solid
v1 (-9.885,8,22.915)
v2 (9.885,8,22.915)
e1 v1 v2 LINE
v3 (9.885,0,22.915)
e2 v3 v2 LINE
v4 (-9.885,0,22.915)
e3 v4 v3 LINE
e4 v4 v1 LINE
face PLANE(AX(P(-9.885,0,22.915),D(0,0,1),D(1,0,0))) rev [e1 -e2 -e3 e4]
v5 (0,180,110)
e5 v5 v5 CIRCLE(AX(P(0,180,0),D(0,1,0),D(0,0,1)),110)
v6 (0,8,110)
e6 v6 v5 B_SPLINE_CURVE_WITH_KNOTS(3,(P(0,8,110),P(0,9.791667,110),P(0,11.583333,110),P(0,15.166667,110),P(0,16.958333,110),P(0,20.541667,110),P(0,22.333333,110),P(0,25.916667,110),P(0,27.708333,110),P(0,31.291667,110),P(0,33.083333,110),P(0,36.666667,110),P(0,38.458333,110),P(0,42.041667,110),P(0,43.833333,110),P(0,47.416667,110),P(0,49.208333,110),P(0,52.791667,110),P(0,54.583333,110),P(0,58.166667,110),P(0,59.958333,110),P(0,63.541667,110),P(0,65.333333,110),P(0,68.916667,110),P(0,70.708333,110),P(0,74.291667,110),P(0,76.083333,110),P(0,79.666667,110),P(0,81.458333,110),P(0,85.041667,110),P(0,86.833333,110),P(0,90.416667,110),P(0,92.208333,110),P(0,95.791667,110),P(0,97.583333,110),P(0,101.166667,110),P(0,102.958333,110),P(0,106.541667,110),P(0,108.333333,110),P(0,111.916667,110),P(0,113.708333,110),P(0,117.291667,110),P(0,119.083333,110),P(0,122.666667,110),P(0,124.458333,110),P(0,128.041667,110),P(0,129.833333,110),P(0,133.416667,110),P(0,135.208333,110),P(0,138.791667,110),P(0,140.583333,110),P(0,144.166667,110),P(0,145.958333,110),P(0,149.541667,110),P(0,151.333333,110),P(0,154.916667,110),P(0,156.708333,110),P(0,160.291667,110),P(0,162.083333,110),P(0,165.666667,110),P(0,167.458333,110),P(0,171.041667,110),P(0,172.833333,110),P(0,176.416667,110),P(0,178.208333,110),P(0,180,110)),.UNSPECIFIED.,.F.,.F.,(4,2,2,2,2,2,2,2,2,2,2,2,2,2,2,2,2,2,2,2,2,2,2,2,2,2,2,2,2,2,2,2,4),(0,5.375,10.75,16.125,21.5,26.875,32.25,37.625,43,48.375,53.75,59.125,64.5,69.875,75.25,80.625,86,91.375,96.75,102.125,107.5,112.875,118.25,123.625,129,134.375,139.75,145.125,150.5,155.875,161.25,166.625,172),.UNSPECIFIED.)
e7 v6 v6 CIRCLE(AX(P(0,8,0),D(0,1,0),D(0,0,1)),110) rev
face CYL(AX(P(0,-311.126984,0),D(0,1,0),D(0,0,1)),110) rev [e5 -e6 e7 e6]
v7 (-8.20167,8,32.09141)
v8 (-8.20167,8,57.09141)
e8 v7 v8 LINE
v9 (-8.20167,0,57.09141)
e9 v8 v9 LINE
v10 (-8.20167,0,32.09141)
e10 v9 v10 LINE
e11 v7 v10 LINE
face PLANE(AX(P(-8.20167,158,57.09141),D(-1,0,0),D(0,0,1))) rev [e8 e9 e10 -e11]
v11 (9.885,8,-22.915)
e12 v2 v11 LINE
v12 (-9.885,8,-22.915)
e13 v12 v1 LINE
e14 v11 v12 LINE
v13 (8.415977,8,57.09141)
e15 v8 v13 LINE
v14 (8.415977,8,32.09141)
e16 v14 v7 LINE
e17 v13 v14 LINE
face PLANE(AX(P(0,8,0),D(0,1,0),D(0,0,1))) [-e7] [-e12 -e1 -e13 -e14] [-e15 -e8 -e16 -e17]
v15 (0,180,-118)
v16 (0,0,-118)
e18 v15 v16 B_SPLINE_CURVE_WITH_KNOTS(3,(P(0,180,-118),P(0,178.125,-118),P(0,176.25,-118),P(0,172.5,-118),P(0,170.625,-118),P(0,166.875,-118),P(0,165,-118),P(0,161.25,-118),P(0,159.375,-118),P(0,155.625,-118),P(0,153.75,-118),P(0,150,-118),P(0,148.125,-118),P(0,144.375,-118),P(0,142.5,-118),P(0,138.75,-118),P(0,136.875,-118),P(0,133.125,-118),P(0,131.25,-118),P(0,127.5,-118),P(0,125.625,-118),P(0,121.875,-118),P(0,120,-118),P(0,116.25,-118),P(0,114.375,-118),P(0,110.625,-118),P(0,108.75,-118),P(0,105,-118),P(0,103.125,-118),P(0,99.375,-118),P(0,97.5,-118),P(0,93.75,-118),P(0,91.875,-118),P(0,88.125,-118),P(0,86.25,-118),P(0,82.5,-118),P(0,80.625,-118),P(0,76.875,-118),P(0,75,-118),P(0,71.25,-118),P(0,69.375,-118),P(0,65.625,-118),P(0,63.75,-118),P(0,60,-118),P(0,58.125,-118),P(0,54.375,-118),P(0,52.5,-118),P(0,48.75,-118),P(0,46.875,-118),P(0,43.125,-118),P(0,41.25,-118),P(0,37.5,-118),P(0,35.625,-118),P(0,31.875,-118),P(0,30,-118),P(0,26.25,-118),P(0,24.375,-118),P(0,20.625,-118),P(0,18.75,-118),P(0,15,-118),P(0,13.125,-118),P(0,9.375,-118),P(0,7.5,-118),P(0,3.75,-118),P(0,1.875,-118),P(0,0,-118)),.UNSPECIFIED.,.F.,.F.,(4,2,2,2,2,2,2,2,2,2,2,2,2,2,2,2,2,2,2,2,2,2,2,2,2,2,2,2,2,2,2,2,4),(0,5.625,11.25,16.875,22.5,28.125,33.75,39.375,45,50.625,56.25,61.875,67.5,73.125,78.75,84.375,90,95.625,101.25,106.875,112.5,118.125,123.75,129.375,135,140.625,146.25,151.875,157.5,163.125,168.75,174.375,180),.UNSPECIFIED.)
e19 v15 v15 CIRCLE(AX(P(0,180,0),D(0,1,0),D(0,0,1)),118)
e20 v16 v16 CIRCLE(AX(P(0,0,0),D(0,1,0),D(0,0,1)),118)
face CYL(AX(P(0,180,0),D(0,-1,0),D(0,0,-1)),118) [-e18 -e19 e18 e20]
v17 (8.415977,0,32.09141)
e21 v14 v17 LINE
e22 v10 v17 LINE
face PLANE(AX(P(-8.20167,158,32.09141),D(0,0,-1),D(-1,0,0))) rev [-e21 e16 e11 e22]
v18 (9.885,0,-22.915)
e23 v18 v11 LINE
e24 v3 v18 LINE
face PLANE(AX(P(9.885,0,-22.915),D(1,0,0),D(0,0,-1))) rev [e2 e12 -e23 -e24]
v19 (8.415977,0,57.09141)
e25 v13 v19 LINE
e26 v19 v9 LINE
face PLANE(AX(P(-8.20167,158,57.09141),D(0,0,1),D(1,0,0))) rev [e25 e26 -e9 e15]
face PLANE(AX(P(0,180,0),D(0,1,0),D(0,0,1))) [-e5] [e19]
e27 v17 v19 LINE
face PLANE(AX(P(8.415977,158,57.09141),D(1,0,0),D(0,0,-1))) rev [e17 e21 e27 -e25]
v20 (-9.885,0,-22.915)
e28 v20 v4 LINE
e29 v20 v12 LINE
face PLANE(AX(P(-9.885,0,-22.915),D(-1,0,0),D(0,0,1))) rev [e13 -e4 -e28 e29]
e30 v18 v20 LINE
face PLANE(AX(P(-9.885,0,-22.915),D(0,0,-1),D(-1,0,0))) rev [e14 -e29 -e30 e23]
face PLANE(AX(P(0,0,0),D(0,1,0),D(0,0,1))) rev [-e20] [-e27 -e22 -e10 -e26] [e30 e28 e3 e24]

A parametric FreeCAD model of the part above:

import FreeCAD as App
import Part
import Sketcher
Q = App.Units.Quantity

doc = App.newDocument("Part")
body = doc.addObject("PartDesign::Body", "Body")

sketch1 = body.newObject("Sketcher::SketchObject", "Sketch")
sketch1.AttachmentSupport = (doc.getObject("XZ_Plane"), [""])
sketch1.MapMode = "FlatFace"
sketch1.addGeometry(Part.Circle(App.Vector(0, 0, 0), App.Vector(0, 0, 1), 118), False)
sketch1.addConstraint([
    Sketcher.Constraint("Coincident", 0, 3, -1, 1),
    Sketcher.Constraint("Diameter", 0, Q("236 mm")),
])
pad1 = body.newObject("PartDesign::Pad", "Pad")
pad1.Profile = sketch1
pad1.Length = 180
pad1.Reversed = True

sketch2 = body.newObject("Sketcher::SketchObject", "Sketch001")
sketch2.AttachmentSupport = (doc.getObject("XZ_Plane"), [""])
sketch2.MapMode = "FlatFace"
sketch2.AttachmentOffset = App.Placement(App.Vector(0, 0, -180), App.Rotation())
sketch2.addGeometry(Part.Circle(App.Vector(0, 0, 0), App.Vector(0, 0, 1), 110), False)
sketch2.addConstraint([
    Sketcher.Constraint("Coincident", 0, 3, -1, 1),
    Sketcher.Constraint("Diameter", 0, Q("220 mm")),
])
pocket1 = body.newObject("PartDesign::Pocket", "Pocket")
pocket1.Profile = sketch2
pocket1.Length = 172
pocket1.Reversed = True

sketch3 = body.newObject("Sketcher::SketchObject", "Sketch002")
sketch3.AttachmentSupport = (doc.getObject("XZ_Plane"), [""])
sketch3.MapMode = "FlatFace"
sketch3.AttachmentOffset = App.Placement(App.Vector(0, 0, -8), App.Rotation())
sketch3.addGeometry([
    Part.LineSegment(App.Vector(-10, -23, 0), App.Vector(-10, 23, 0)),
    Part.LineSegment(App.Vector(-10, 23, 0), App.Vector(10, 23, 0)),
    Part.LineSegment(App.Vector(10, 23, 0), App.Vector(10, -23, 0)),
    Part.LineSegment(App.Vector(10, -23, 0), App.Vector(-10, -23, 0)),
], False)
sketch3.addConstraint([
    Sketcher.Constraint("Coincident", 0, 2, 1, 1),
    Sketcher.Constraint("Coincident", 1, 2, 2, 1),
    Sketcher.Constraint("Coincident", 2, 2, 3, 1),
    Sketcher.Constraint("Coincident", 3, 2, 0, 1),
    Sketcher.Constraint("Vertical", 0),
    Sketcher.Constraint("Horizontal", 1),
    Sketcher.Constraint("Vertical", 2),
    Sketcher.Constraint("Horizontal", 3),
    Sketcher.Constraint("Symmetric", 0, 2, 2, 2, -1, 1),
    Sketcher.Constraint("DistanceX", 1, 1, 1, 2, Q("19.77 mm")),
    Sketcher.Constraint("DistanceY", 0, 1, 0, 2, Q("45.83 mm")),
])
pocket2 = body.newObject("PartDesign::Pocket", "Pocket001")
pocket2.Profile = sketch3
pocket2.Type = "ThroughAll"
pocket2.Reversed = True

sketch4 = body.newObject("Sketcher::SketchObject", "Sketch003")
sketch4.AttachmentSupport = (doc.getObject("XZ_Plane"), [""])
sketch4.MapMode = "FlatFace"
sketch4.addGeometry([
    Part.LineSegment(App.Vector(-8, 57, 0), App.Vector(-8, 32, 0)),
    Part.LineSegment(App.Vector(-8, 32, 0), App.Vector(8, 32, 0)),
    Part.LineSegment(App.Vector(8, 32, 0), App.Vector(8, 57, 0)),
    Part.LineSegment(App.Vector(8, 57, 0), App.Vector(-8, 57, 0)),
], False)
sketch4.addConstraint([
    Sketcher.Constraint("Coincident", 0, 2, 1, 1),
    Sketcher.Constraint("Coincident", 1, 2, 2, 1),
    Sketcher.Constraint("Coincident", 2, 2, 3, 1),
    Sketcher.Constraint("Coincident", 3, 2, 0, 1),
    Sketcher.Constraint("Vertical", 0),
    Sketcher.Constraint("Horizontal", 1),
    Sketcher.Constraint("Vertical", 2),
    Sketcher.Constraint("Horizontal", 3),
    Sketcher.Constraint("DistanceY", 0, 2, 0, 1, Q("25 mm")),
    Sketcher.Constraint("DistanceX", 1, 1, 1, 2, Q("16.617647 mm")),
    Sketcher.Constraint("DistanceX", 0, 2, -1, 1, Q("8.20167 mm")),
    Sketcher.Constraint("DistanceY", -1, 1, 0, 2, Q("32.09141 mm")),
])
pocket3 = body.newObject("PartDesign::Pocket", "Pocket002")
pocket3.Profile = sketch4
pocket3.Length = 158

doc.recompute()
